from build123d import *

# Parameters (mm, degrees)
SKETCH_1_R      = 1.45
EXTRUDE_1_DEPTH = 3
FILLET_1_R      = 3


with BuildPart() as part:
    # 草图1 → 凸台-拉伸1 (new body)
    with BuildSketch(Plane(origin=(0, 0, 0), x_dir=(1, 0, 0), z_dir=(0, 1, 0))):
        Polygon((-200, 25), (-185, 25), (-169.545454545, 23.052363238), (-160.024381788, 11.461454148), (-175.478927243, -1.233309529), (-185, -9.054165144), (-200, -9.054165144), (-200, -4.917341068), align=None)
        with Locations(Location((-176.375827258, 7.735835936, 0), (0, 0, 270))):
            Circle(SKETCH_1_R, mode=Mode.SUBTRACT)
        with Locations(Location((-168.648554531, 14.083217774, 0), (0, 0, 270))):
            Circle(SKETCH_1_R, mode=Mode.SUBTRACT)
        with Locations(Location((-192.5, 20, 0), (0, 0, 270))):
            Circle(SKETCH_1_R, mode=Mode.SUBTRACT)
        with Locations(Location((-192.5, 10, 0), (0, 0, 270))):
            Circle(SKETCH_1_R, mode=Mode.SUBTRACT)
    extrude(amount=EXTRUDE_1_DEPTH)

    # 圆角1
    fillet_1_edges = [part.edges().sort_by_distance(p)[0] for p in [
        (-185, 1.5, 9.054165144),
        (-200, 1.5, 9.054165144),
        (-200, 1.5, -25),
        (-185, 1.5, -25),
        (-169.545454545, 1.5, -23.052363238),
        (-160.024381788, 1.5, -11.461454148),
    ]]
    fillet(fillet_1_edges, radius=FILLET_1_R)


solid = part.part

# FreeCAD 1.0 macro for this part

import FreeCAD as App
import Part
import Sketcher

V = App.Vector
Q = App.Units.Quantity


def edges_at(feature, points):
    """Names of the edges that pass closest to the given points."""
    edges = feature.Shape.Edges
    near = lambda p: min(range(len(edges)), key=lambda i: edges[i].distToShape(Part.Vertex(*p))[0])
    return sorted({f"Edge{near(p) + 1}" for p in points})

doc = App.newDocument("Part")
body = doc.addObject("PartDesign::Body", "Body")

# Sketch on XZ plane
sketch1 = doc.addObject("Sketcher::SketchObject", "Sketch")
body.addObject(sketch1)
sketch1.AttachmentSupport = (doc.XZ_Plane, [""])
sketch1.MapMode = "FlatFace"
sketch1.addGeometry([
    Part.LineSegment(V(-185, -25, 0), V(-200, -25, 0)),  # 0
    Part.LineSegment(V(-200, -25, 0), V(-200, 9.1, 0)),  # 1
    Part.LineSegment(V(-200, 9.1, 0), V(-185, 9.1, 0)),  # 2
    Part.LineSegment(V(-185, 9.1, 0), V(-175.5, 1.2, 0)),  # 3
    Part.LineSegment(V(-175.5, 1.2, 0), V(-160, -11.5, 0)),  # 4
    Part.LineSegment(V(-160, -11.5, 0), V(-169.5, -23.1, 0)),  # 5
    Part.LineSegment(V(-169.5, -23.1, 0), V(-185, -25, 0)),  # 6
    Part.Circle(V(-176.4, -7.7, 0), V(0, 0, 1), 1.4),  # 7
    Part.Circle(V(-192.5, -10, 0), V(0, 0, 1), 1.4),  # 8
    Part.Circle(V(-168.6, -14.1, 0), V(0, 0, 1), 1.4),  # 9
    Part.Circle(V(-192.5, -20, 0), V(0, 0, 1), 1.4),  # 10
], False)
sketch1.addConstraint([
    Sketcher.Constraint("Coincident", 0, 2, 1, 1),
    Sketcher.Constraint("Coincident", 1, 2, 2, 1),
    Sketcher.Constraint("Coincident", 2, 2, 3, 1),
    Sketcher.Constraint("Coincident", 3, 2, 4, 1),
    Sketcher.Constraint("Coincident", 4, 2, 5, 1),
    Sketcher.Constraint("Coincident", 5, 2, 6, 1),
    Sketcher.Constraint("Coincident", 6, 2, 0, 1),
    Sketcher.Constraint("Horizontal", 0),
    Sketcher.Constraint("Vertical", 1),
    Sketcher.Constraint("Horizontal", 2),
    Sketcher.Constraint("Equal", 7, 8),
    Sketcher.Constraint("Equal", 8, 9),
    Sketcher.Constraint("Equal", 9, 10),
    Sketcher.Constraint("Parallel", 3, 4),
    Sketcher.Constraint("Perpendicular", 4, 5),
    Sketcher.Constraint("Vertical", 8, 3, 10, 3),
    Sketcher.Constraint("Vertical", 2, 2, 6, 2),
    Sketcher.Constraint("Diameter", 7, Q("2.9 mm")),
    Sketcher.Constraint("DistanceX", 0, 2, 0, 1, Q("15 mm")),
    Sketcher.Constraint("Distance", 4, Q("20 mm")),
    Sketcher.Constraint("Distance", 5, Q("15 mm")),
    Sketcher.Constraint("DistanceY", 8, 3, -1, 1, Q("10 mm")),
    Sketcher.Constraint("DistanceY", 10, 3, -1, 1, Q("20 mm")),
    Sketcher.Constraint("DistanceX", 0, 2, -1, 1, Q("200 mm")),
    Sketcher.Constraint("DistanceY", 0, 2, -1, 1, Q("25 mm")),
    Sketcher.Constraint("DistanceX", 8, 3, -1, 1, Q("192.5 mm")),
    Sketcher.Constraint("DistanceY", 7, 3, 1, 2, Q("16.790001 mm")),
    Sketcher.Constraint("DistanceX", 7, 3, 3, 2, Q("0.8969 mm")),
    Sketcher.Constraint("DistanceX", 5, 2, 9, 3, Q("0.8969 mm")),
    Sketcher.Constraint("Distance", 3, Q("12.321388 mm")),
    Sketcher.Constraint("DistanceY", 1, 1, 1, 2, Q("34.054165 mm")),
    Sketcher.Constraint("DistanceY", -1, 1, 3, 2, Q("1.23331 mm")),
    Sketcher.Constraint("DistanceY", 9, 3, 7, 3, Q("6.347382 mm")),
])
pad1 = doc.addObject("PartDesign::Pad", "Pad")
body.addObject(pad1)
pad1.Profile = sketch1
pad1.Length = 3
pad1.Reversed = True
doc.recompute()

fillet = doc.addObject("PartDesign::Fillet", "Fillet")
body.addObject(fillet)
fillet.Base = (pad1, edges_at(pad1, [
    (-185, 1.5, 9.054),
    (-200, 1.5, 9.054),
    (-200, 1.5, -25),
    (-185, 1.5, -25),
    (-169.545, 1.5, -23.052),
    (-160.024, 1.5, -11.461),
]))
fillet.Radius = 3

doc.recompute()
